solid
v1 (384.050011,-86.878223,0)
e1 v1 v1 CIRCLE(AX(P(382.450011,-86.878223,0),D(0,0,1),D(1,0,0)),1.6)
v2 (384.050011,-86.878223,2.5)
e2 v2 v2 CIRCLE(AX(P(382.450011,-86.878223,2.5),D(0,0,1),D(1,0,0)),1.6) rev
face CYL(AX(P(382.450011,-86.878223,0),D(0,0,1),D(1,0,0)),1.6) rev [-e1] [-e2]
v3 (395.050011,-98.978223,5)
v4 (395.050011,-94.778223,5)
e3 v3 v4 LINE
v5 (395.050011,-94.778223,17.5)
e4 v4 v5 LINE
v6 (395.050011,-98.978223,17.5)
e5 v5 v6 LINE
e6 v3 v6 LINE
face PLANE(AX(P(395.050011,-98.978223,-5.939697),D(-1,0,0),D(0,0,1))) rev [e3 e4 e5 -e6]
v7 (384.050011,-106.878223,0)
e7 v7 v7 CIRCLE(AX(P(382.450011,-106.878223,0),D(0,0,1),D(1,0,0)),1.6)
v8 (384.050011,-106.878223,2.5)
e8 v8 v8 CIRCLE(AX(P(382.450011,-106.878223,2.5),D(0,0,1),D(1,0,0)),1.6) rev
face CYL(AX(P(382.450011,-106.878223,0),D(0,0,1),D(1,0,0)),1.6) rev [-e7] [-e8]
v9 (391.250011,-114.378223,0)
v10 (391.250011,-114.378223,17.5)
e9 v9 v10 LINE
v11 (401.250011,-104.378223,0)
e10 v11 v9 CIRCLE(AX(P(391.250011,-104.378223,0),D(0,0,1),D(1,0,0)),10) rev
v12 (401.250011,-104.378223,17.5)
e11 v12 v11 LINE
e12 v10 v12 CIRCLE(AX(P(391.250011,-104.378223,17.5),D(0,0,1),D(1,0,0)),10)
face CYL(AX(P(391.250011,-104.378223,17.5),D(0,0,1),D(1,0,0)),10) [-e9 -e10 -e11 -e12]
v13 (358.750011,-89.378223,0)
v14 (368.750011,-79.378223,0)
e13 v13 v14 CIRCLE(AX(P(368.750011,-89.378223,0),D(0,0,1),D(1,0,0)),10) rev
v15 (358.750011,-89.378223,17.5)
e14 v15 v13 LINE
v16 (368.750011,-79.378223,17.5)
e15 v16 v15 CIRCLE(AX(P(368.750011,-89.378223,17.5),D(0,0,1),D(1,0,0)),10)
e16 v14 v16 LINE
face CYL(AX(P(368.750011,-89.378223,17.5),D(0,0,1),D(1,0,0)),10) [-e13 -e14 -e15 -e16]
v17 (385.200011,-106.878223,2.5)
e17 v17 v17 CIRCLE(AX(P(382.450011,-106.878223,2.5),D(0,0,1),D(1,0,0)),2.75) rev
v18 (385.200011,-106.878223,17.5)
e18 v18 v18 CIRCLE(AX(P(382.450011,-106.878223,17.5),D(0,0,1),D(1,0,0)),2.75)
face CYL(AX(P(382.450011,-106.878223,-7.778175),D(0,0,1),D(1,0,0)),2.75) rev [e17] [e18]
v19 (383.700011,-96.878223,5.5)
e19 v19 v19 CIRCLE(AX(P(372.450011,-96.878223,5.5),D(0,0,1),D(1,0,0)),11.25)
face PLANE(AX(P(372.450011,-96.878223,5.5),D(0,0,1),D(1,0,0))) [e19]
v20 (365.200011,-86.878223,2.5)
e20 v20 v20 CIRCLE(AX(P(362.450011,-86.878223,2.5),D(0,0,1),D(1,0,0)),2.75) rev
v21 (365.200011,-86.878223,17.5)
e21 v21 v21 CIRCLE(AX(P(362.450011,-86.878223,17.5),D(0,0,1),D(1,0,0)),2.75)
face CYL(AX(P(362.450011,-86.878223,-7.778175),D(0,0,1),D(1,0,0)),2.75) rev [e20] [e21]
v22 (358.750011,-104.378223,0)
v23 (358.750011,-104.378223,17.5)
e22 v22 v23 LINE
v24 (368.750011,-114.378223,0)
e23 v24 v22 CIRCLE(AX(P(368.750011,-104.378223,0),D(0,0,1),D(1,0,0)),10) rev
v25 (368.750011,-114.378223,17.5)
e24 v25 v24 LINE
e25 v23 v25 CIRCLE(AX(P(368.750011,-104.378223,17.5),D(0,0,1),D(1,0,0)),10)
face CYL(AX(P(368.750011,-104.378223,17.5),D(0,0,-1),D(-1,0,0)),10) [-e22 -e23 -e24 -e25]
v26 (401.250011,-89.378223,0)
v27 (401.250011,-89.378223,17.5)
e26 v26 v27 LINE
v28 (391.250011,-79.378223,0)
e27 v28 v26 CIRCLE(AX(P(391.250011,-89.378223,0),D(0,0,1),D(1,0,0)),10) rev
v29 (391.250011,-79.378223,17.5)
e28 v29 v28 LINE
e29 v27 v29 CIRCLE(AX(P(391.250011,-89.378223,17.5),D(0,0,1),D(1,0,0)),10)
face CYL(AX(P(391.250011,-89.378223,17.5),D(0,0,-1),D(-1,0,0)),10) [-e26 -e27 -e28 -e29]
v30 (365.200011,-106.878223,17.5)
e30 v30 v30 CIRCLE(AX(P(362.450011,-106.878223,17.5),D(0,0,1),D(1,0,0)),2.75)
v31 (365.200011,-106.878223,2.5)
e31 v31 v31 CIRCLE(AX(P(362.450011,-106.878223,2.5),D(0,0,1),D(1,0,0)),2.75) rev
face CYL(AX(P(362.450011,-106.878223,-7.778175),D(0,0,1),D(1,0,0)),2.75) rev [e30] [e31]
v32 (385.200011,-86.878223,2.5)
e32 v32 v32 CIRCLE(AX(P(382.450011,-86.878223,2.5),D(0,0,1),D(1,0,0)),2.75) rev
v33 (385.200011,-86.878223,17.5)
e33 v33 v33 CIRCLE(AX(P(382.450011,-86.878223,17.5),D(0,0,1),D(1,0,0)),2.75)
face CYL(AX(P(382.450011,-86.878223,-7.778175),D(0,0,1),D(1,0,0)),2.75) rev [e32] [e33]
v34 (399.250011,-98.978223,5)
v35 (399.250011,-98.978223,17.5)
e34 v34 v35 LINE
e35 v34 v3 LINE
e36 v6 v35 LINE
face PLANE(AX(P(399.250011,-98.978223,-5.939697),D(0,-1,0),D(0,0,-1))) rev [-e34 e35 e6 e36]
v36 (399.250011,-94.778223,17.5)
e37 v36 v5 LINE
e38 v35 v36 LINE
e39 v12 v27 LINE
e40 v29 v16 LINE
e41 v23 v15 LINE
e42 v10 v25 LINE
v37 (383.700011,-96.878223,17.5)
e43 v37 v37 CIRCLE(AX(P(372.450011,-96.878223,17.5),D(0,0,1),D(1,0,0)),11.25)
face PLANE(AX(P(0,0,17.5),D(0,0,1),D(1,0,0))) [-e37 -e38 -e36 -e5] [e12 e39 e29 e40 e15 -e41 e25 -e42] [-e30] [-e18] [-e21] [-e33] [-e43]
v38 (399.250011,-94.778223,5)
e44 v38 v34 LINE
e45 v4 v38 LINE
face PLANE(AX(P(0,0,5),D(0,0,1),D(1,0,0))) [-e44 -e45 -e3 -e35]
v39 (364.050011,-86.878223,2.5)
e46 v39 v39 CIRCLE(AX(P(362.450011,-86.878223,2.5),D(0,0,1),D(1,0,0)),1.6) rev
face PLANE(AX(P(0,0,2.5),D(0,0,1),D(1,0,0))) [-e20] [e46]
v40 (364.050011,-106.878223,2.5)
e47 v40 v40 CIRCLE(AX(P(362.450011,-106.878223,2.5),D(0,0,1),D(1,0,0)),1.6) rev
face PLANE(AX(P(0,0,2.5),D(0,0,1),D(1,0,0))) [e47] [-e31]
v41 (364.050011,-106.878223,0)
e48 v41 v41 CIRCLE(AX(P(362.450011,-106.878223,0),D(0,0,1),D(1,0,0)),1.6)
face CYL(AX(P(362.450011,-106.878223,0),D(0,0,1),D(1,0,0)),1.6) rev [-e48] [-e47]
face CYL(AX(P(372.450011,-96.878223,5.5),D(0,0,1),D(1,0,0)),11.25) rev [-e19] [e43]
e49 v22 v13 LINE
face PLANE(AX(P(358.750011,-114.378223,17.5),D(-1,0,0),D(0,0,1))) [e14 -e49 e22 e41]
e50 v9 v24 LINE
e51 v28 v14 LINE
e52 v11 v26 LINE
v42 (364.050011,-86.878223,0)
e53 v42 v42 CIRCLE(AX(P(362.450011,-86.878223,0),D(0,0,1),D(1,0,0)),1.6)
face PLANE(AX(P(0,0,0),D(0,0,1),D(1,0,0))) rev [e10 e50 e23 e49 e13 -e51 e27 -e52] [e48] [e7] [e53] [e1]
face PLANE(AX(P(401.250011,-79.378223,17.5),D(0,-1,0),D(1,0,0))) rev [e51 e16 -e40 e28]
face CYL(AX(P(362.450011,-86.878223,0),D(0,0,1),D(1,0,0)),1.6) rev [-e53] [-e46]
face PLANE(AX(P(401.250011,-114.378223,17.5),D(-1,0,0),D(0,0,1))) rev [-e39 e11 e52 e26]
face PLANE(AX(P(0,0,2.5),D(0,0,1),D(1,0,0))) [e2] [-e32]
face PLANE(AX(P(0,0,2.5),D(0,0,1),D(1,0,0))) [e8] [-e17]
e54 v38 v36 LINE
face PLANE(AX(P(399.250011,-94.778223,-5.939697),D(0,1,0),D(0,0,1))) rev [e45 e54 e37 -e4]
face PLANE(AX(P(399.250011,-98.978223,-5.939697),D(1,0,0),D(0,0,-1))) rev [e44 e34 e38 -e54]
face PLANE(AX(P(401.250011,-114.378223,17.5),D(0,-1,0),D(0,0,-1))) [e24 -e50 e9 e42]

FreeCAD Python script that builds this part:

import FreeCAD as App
import Part
import Sketcher


def edges_at(feature, points):
    """Names of the edges that pass closest to the given points."""
    edges = feature.Shape.Edges
    near = lambda p: min(range(len(edges)), key=lambda i: edges[i].distToShape(Part.Vertex(*p))[0])
    return sorted({f"Edge{near(p) + 1}" for p in points})


def add_polygon(sketch, points):
    """Adds a closed chain of lines whose ends are joined by coincident constraints."""
    first, n = sketch.GeometryCount, len(points)
    for a, b in zip(points, points[1:] + points[:1]):
        sketch.addGeometry(Part.LineSegment(App.Vector(*a, 0), App.Vector(*b, 0)), False)
    for i in range(n):
        sketch.addConstraint(Sketcher.Constraint("Coincident", first + i, 2, first + (i + 1) % n, 1))

doc = App.newDocument("Part")
body = doc.addObject("PartDesign::Body", "Body")

# Sketch on XY plane
sketch1 = doc.addObject("Sketcher::SketchObject", "Sketch")
body.addObject(sketch1)
sketch1.AttachmentSupport = (doc.XY_Plane, [""])
sketch1.MapMode = "FlatFace"
add_polygon(sketch1, [(358.750011, -79.378223), (358.750011, -114.378223), (401.250011, -114.378223), (401.250011, -79.378223)])  # lines 0-3
sketch1.addConstraint(Sketcher.Constraint("Vertical", 0))
sketch1.addConstraint(Sketcher.Constraint("Horizontal", 1))
sketch1.addConstraint(Sketcher.Constraint("Vertical", 2))
sketch1.addConstraint(Sketcher.Constraint("Horizontal", 3))
sketch1.addConstraint(Sketcher.Constraint("DistanceY", 0, 2, 0, 1, 35.0))
sketch1.addConstraint(Sketcher.Constraint("DistanceX", 1, 1, 1, 2, 42.5))
sketch1.addConstraint(Sketcher.Constraint("DistanceX", -1, 1, 0, 2, 358.750011))
sketch1.addConstraint(Sketcher.Constraint("DistanceY", 0, 2, -1, 1, 114.378223))
pad1 = doc.addObject("PartDesign::Pad", "Pad")
body.addObject(pad1)
pad1.Profile = sketch1
pad1.Length = 17.5

# Sketch on XY plane
sketch2 = doc.addObject("Sketcher::SketchObject", "Sketch001")
body.addObject(sketch2)
sketch2.AttachmentSupport = (doc.XY_Plane, [""])
sketch2.MapMode = "FlatFace"
sketch2.AttachmentOffset = App.Placement(App.Vector(0, 0, 17.5), App.Rotation())
add_polygon(sketch2, [(395.050011, -94.778223), (395.050011, -98.978223), (399.250011, -98.978223), (399.250011, -94.778223)])  # lines 0-3
sketch2.addConstraint(Sketcher.Constraint("Vertical", 0))
sketch2.addConstraint(Sketcher.Constraint("Horizontal", 1))
sketch2.addConstraint(Sketcher.Constraint("Vertical", 2))
sketch2.addConstraint(Sketcher.Constraint("Horizontal", 3))
sketch2.addConstraint(Sketcher.Constraint("Equal", 3, 0))
sketch2.addConstraint(Sketcher.Constraint("DistanceX", 1, 1, 1, 2, 4.2))
sketch2.addConstraint(Sketcher.Constraint("DistanceX", -1, 1, 0, 2, 395.050011))
sketch2.addConstraint(Sketcher.Constraint("DistanceY", 0, 2, -1, 1, 98.978223))
pocket1 = doc.addObject("PartDesign::Pocket", "Pocket")
body.addObject(pocket1)
pocket1.Profile = sketch2
pocket1.Length = 12.5

# Sketch on XY plane
sketch3 = doc.addObject("Sketcher::SketchObject", "Sketch002")
body.addObject(sketch3)
sketch3.AttachmentSupport = (doc.XY_Plane, [""])
sketch3.MapMode = "FlatFace"
sketch3.AttachmentOffset = App.Placement(App.Vector(0, 0, 17.5), App.Rotation())
sketch3.addGeometry(Part.Circle(App.Vector(382.450011, -86.878223, 0), App.Vector(0, 0, 1), 1.6), False)
sketch3.addGeometry(Part.Circle(App.Vector(382.450011, -106.878223, 0), App.Vector(0, 0, 1), 1.6), False)
sketch3.addGeometry(Part.Circle(App.Vector(362.450011, -86.878223, 0), App.Vector(0, 0, 1), 1.6), False)
sketch3.addGeometry(Part.Circle(App.Vector(362.450011, -106.878223, 0), App.Vector(0, 0, 1), 1.6), False)
sketch3.addConstraint(Sketcher.Constraint("Equal", 0, 1))
sketch3.addConstraint(Sketcher.Constraint("Equal", 1, 2))
sketch3.addConstraint(Sketcher.Constraint("Equal", 2, 3))
sketch3.addConstraint(Sketcher.Constraint("Horizontal", 0, 3, 2, 3))
sketch3.addConstraint(Sketcher.Constraint("Horizontal", 1, 3, 3, 3))
sketch3.addConstraint(Sketcher.Constraint("Vertical", 0, 3, 1, 3))
sketch3.addConstraint(Sketcher.Constraint("Vertical", 2, 3, 3, 3))
sketch3.addConstraint(Sketcher.Constraint("Diameter", 0, 3.2))
sketch3.addConstraint(Sketcher.Constraint("DistanceY", 1, 3, 0, 3, 20.0))
sketch3.addConstraint(Sketcher.Constraint("DistanceX", 2, 3, 0, 3, 20.0))
sketch3.addConstraint(Sketcher.Constraint("DistanceX", -1, 1, 0, 3, 382.450011))
sketch3.addConstraint(Sketcher.Constraint("DistanceY", 0, 3, -1, 1, 86.878223))
pocket2 = doc.addObject("PartDesign::Pocket", "Pocket001")
body.addObject(pocket2)
pocket2.Profile = sketch3
pocket2.Type = "ThroughAll"

# Sketch on XY plane
sketch4 = doc.addObject("Sketcher::SketchObject", "Sketch003")
body.addObject(sketch4)
sketch4.AttachmentSupport = (doc.XY_Plane, [""])
sketch4.MapMode = "FlatFace"
sketch4.AttachmentOffset = App.Placement(App.Vector(0, 0, 17.5), App.Rotation())
sketch4.addGeometry(Part.Circle(App.Vector(382.450011, -106.878223, 0), App.Vector(0, 0, 1), 2.75), False)
sketch4.addGeometry(Part.Circle(App.Vector(382.450011, -86.878223, 0), App.Vector(0, 0, 1), 2.75), False)
sketch4.addGeometry(Part.Circle(App.Vector(362.450011, -86.878223, 0), App.Vector(0, 0, 1), 2.75), False)
sketch4.addGeometry(Part.Circle(App.Vector(362.450011, -106.878223, 0), App.Vector(0, 0, 1), 2.75), False)
sketch4.addConstraint(Sketcher.Constraint("Equal", 0, 1))
sketch4.addConstraint(Sketcher.Constraint("Equal", 1, 2))
sketch4.addConstraint(Sketcher.Constraint("Equal", 2, 3))
sketch4.addConstraint(Sketcher.Constraint("Horizontal", 1, 3, 2, 3))
sketch4.addConstraint(Sketcher.Constraint("Horizontal", 0, 3, 3, 3))
sketch4.addConstraint(Sketcher.Constraint("Vertical", 0, 3, 1, 3))
sketch4.addConstraint(Sketcher.Constraint("Vertical", 2, 3, 3, 3))
sketch4.addConstraint(Sketcher.Constraint("Diameter", 0, 5.5))
sketch4.addConstraint(Sketcher.Constraint("DistanceY", 0, 3, 1, 3, 20.0))
sketch4.addConstraint(Sketcher.Constraint("DistanceX", 2, 3, 1, 3, 20.0))
sketch4.addConstraint(Sketcher.Constraint("DistanceX", -1, 1, 0, 3, 382.450011))
sketch4.addConstraint(Sketcher.Constraint("DistanceY", 0, 3, -1, 1, 106.878223))
pocket3 = doc.addObject("PartDesign::Pocket", "Pocket002")
body.addObject(pocket3)
pocket3.Profile = sketch4
pocket3.Length = 15

# Sketch on XY plane
sketch5 = doc.addObject("Sketcher::SketchObject", "Sketch004")
body.addObject(sketch5)
sketch5.AttachmentSupport = (doc.XY_Plane, [""])
sketch5.MapMode = "FlatFace"
sketch5.AttachmentOffset = App.Placement(App.Vector(0, 0, 17.5), App.Rotation())
sketch5.addGeometry(Part.Circle(App.Vector(372.450011, -96.878223, 0), App.Vector(0, 0, 1), 11.25), False)
sketch5.addConstraint(Sketcher.Constraint("Diameter", 0, 22.5))
sketch5.addConstraint(Sketcher.Constraint("DistanceX", -1, 1, 0, 3, 372.450011))
sketch5.addConstraint(Sketcher.Constraint("DistanceY", 0, 3, -1, 1, 96.878223))
pocket4 = doc.addObject("PartDesign::Pocket", "Pocket003")
body.addObject(pocket4)
pocket4.Profile = sketch5
pocket4.Length = 12
doc.recompute()

fillet = doc.addObject("PartDesign::Fillet", "Fillet")
body.addObject(fillet)
fillet.Base = (pocket4, edges_at(pocket4, [
    (401.25, -114.378, 8.75),
    (358.75, -114.378, 8.75),
    (358.75, -79.378, 8.75),
    (401.25, -79.378, 8.75),
]))
fillet.Radius = 10

doc.recompute()
